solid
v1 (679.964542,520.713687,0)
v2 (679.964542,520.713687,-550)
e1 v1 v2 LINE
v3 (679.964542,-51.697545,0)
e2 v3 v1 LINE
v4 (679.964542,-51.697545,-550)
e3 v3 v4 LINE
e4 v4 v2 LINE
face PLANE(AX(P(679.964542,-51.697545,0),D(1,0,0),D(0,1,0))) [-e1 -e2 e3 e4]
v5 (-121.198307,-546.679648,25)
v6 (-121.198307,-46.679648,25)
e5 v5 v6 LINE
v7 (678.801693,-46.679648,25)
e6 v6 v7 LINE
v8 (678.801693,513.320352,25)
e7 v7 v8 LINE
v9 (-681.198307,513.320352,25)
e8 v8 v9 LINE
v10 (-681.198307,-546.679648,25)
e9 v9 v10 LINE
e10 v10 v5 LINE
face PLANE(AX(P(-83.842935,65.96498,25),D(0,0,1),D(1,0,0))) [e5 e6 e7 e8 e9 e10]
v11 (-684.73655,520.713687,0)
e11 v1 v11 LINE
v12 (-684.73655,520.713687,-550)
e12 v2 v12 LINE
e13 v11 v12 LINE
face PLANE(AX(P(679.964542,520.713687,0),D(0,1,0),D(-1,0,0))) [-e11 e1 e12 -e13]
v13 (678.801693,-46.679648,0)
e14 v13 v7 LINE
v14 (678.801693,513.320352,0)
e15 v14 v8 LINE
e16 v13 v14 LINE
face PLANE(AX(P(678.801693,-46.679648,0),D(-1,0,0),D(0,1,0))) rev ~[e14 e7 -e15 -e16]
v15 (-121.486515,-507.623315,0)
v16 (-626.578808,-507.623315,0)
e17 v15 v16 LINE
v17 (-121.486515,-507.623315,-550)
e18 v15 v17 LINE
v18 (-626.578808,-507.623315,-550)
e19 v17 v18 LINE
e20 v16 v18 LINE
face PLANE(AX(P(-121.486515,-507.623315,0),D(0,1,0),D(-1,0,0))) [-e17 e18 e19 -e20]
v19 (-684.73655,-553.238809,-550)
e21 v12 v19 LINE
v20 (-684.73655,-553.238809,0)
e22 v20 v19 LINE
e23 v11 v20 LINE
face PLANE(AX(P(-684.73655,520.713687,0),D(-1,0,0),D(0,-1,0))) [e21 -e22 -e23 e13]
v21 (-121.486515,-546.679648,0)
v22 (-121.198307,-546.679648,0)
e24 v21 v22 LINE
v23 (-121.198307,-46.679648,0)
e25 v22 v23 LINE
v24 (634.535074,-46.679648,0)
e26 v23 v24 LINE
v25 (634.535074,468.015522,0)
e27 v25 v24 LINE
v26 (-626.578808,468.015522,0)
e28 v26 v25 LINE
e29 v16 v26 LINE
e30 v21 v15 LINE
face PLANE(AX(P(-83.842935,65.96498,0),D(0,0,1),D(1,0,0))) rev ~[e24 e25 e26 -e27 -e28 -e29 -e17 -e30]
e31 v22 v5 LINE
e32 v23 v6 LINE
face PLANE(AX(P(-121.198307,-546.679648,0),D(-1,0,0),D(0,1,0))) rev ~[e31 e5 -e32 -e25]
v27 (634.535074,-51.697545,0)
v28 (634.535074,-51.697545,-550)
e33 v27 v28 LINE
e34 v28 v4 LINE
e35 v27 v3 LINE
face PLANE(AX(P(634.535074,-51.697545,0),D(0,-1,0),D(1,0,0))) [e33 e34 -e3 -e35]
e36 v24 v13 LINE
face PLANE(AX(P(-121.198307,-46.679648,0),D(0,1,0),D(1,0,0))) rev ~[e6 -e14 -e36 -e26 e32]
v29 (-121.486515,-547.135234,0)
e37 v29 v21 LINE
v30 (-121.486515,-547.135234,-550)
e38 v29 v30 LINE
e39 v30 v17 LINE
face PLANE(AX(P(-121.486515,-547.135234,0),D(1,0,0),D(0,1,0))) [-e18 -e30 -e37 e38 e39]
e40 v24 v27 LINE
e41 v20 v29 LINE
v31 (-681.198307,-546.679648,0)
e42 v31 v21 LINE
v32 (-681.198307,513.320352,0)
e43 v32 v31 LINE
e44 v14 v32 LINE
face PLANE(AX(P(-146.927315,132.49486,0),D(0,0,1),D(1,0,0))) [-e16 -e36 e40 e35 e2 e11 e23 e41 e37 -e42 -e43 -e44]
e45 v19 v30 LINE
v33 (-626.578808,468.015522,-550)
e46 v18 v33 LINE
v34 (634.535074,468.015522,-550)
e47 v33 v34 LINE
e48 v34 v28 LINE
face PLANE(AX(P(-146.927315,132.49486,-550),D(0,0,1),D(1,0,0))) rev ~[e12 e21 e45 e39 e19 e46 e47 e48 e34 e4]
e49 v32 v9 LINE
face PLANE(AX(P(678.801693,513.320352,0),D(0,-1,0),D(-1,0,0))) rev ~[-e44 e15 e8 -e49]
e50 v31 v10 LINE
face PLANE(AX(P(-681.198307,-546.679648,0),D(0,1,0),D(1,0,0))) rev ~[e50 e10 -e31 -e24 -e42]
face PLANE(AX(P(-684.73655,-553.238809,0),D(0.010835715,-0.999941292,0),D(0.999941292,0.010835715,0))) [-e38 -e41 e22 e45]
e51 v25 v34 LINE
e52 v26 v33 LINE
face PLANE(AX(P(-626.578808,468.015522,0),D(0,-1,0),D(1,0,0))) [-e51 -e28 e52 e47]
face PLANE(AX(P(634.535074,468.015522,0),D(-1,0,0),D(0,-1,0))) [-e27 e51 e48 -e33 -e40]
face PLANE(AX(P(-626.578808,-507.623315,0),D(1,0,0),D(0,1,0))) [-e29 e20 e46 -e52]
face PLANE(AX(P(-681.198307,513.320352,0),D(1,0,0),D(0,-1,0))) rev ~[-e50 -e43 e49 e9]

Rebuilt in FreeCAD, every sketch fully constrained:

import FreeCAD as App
import Part
import Sketcher

V = App.Vector
Q = App.Units.Quantity


def add_polygon(sketch, points):
    """Adds a closed chain of lines whose ends are joined by coincident constraints."""
    first, n = sketch.GeometryCount, len(points)
    for a, b in zip(points, points[1:] + points[:1]):
        sketch.addGeometry(Part.LineSegment(App.Vector(*a, 0), App.Vector(*b, 0)), False)
    for i in range(n):
        sketch.addConstraint(Sketcher.Constraint("Coincident", first + i, 2, first + (i + 1) % n, 1))

doc = App.newDocument("Part")
body = doc.addObject("PartDesign::Body", "Body")

sketch1 = body.newObject("Sketcher::SketchObject", "Sketch")
sketch1.AttachmentSupport = (doc.getObject("XY_Plane"), [""])
sketch1.MapMode = "FlatFace"
add_polygon(sketch1, [(679, 513), (-681, 513), (-681, -547), (-121, -547), (-121, -47), (679, -47)])
sketch1.addConstraint(Sketcher.Constraint("Horizontal", 0))
sketch1.addConstraint(Sketcher.Constraint("Vertical", 1))
sketch1.addConstraint(Sketcher.Constraint("Horizontal", 2))
sketch1.addConstraint(Sketcher.Constraint("Vertical", 3))
sketch1.addConstraint(Sketcher.Constraint("Horizontal", 4))
sketch1.addConstraint(Sketcher.Constraint("Vertical", 5))
sketch1.addConstraint(Sketcher.Constraint("Equal", 2, 5))
sketch1.addConstraint(Sketcher.Constraint("DistanceX", 0, 2, 0, 1, Q("1360 mm")))
sketch1.addConstraint(Sketcher.Constraint("DistanceX", 2, 1, 2, 2, Q("560 mm")))
sketch1.addConstraint(Sketcher.Constraint("DistanceY", 1, 2, 1, 1, Q("1060 mm")))
sketch1.addConstraint(Sketcher.Constraint("DistanceY", -1, 1, 0, 2, Q("513.320352 mm")))
sketch1.addConstraint(Sketcher.Constraint("DistanceX", 0, 2, -1, 1, Q("681.198307 mm")))
pad1 = body.newObject("PartDesign::Pad", "Pad")
pad1.Profile = sketch1
pad1.Length = 25

sketch2 = body.newObject("Sketcher::SketchObject", "Sketch001")
sketch2.AttachmentSupport = (doc.getObject("XY_Plane"), [""])
sketch2.MapMode = "FlatFace"
add_polygon(sketch2, [(-685, -553), (-121, -547), (-121, -508), (-627, -508), (-627, 468), (635, 468), (635, -52), (680, -52), (680, 521), (-685, 521)])
sketch2.addConstraint(Sketcher.Constraint("Vertical", 1))
sketch2.addConstraint(Sketcher.Constraint("Horizontal", 2))
sketch2.addConstraint(Sketcher.Constraint("Vertical", 3))
sketch2.addConstraint(Sketcher.Constraint("Horizontal", 4))
sketch2.addConstraint(Sketcher.Constraint("Vertical", 5))
sketch2.addConstraint(Sketcher.Constraint("Horizontal", 6))
sketch2.addConstraint(Sketcher.Constraint("Vertical", 7))
sketch2.addConstraint(Sketcher.Constraint("Horizontal", 8))
sketch2.addConstraint(Sketcher.Constraint("Vertical", 9))
sketch2.addConstraint(Sketcher.Constraint("DistanceY", 1, 2, 7, 2, Q("1028.337002 mm")))
sketch2.addConstraint(Sketcher.Constraint("DistanceX", 4, 1, 4, 2, Q("1261.113882 mm")))
sketch2.addConstraint(Sketcher.Constraint("DistanceX", 6, 1, 6, 2, Q("45.429468 mm")))
sketch2.addConstraint(Sketcher.Constraint("DistanceX", 8, 2, 8, 1, Q("1364.701092 mm")))
sketch2.addConstraint(Sketcher.Constraint("DistanceY", 1, 1, 1, 2, Q("39.511919 mm")))
sketch2.addConstraint(Sketcher.Constraint("DistanceY", 7, 1, 7, 2, Q("572.411232 mm")))
sketch2.addConstraint(Sketcher.Constraint("DistanceX", 2, 2, 2, 1, Q("505.092293 mm")))
sketch2.addConstraint(Sketcher.Constraint("DistanceY", 3, 1, 3, 2, Q("975.638837 mm")))
sketch2.addConstraint(Sketcher.Constraint("DistanceY", 9, 2, 9, 1, Q("1073.952496 mm")))
sketch2.addConstraint(Sketcher.Constraint("DistanceX", 2, 2, -1, 1, Q("626.578808 mm")))
sketch2.addConstraint(Sketcher.Constraint("DistanceY", -1, 1, 3, 2, Q("468.015522 mm")))
pad2 = body.newObject("PartDesign::Pad", "Pad001")
pad2.Profile = sketch2
pad2.Length = 550
pad2.Reversed = True

doc.recompute()
